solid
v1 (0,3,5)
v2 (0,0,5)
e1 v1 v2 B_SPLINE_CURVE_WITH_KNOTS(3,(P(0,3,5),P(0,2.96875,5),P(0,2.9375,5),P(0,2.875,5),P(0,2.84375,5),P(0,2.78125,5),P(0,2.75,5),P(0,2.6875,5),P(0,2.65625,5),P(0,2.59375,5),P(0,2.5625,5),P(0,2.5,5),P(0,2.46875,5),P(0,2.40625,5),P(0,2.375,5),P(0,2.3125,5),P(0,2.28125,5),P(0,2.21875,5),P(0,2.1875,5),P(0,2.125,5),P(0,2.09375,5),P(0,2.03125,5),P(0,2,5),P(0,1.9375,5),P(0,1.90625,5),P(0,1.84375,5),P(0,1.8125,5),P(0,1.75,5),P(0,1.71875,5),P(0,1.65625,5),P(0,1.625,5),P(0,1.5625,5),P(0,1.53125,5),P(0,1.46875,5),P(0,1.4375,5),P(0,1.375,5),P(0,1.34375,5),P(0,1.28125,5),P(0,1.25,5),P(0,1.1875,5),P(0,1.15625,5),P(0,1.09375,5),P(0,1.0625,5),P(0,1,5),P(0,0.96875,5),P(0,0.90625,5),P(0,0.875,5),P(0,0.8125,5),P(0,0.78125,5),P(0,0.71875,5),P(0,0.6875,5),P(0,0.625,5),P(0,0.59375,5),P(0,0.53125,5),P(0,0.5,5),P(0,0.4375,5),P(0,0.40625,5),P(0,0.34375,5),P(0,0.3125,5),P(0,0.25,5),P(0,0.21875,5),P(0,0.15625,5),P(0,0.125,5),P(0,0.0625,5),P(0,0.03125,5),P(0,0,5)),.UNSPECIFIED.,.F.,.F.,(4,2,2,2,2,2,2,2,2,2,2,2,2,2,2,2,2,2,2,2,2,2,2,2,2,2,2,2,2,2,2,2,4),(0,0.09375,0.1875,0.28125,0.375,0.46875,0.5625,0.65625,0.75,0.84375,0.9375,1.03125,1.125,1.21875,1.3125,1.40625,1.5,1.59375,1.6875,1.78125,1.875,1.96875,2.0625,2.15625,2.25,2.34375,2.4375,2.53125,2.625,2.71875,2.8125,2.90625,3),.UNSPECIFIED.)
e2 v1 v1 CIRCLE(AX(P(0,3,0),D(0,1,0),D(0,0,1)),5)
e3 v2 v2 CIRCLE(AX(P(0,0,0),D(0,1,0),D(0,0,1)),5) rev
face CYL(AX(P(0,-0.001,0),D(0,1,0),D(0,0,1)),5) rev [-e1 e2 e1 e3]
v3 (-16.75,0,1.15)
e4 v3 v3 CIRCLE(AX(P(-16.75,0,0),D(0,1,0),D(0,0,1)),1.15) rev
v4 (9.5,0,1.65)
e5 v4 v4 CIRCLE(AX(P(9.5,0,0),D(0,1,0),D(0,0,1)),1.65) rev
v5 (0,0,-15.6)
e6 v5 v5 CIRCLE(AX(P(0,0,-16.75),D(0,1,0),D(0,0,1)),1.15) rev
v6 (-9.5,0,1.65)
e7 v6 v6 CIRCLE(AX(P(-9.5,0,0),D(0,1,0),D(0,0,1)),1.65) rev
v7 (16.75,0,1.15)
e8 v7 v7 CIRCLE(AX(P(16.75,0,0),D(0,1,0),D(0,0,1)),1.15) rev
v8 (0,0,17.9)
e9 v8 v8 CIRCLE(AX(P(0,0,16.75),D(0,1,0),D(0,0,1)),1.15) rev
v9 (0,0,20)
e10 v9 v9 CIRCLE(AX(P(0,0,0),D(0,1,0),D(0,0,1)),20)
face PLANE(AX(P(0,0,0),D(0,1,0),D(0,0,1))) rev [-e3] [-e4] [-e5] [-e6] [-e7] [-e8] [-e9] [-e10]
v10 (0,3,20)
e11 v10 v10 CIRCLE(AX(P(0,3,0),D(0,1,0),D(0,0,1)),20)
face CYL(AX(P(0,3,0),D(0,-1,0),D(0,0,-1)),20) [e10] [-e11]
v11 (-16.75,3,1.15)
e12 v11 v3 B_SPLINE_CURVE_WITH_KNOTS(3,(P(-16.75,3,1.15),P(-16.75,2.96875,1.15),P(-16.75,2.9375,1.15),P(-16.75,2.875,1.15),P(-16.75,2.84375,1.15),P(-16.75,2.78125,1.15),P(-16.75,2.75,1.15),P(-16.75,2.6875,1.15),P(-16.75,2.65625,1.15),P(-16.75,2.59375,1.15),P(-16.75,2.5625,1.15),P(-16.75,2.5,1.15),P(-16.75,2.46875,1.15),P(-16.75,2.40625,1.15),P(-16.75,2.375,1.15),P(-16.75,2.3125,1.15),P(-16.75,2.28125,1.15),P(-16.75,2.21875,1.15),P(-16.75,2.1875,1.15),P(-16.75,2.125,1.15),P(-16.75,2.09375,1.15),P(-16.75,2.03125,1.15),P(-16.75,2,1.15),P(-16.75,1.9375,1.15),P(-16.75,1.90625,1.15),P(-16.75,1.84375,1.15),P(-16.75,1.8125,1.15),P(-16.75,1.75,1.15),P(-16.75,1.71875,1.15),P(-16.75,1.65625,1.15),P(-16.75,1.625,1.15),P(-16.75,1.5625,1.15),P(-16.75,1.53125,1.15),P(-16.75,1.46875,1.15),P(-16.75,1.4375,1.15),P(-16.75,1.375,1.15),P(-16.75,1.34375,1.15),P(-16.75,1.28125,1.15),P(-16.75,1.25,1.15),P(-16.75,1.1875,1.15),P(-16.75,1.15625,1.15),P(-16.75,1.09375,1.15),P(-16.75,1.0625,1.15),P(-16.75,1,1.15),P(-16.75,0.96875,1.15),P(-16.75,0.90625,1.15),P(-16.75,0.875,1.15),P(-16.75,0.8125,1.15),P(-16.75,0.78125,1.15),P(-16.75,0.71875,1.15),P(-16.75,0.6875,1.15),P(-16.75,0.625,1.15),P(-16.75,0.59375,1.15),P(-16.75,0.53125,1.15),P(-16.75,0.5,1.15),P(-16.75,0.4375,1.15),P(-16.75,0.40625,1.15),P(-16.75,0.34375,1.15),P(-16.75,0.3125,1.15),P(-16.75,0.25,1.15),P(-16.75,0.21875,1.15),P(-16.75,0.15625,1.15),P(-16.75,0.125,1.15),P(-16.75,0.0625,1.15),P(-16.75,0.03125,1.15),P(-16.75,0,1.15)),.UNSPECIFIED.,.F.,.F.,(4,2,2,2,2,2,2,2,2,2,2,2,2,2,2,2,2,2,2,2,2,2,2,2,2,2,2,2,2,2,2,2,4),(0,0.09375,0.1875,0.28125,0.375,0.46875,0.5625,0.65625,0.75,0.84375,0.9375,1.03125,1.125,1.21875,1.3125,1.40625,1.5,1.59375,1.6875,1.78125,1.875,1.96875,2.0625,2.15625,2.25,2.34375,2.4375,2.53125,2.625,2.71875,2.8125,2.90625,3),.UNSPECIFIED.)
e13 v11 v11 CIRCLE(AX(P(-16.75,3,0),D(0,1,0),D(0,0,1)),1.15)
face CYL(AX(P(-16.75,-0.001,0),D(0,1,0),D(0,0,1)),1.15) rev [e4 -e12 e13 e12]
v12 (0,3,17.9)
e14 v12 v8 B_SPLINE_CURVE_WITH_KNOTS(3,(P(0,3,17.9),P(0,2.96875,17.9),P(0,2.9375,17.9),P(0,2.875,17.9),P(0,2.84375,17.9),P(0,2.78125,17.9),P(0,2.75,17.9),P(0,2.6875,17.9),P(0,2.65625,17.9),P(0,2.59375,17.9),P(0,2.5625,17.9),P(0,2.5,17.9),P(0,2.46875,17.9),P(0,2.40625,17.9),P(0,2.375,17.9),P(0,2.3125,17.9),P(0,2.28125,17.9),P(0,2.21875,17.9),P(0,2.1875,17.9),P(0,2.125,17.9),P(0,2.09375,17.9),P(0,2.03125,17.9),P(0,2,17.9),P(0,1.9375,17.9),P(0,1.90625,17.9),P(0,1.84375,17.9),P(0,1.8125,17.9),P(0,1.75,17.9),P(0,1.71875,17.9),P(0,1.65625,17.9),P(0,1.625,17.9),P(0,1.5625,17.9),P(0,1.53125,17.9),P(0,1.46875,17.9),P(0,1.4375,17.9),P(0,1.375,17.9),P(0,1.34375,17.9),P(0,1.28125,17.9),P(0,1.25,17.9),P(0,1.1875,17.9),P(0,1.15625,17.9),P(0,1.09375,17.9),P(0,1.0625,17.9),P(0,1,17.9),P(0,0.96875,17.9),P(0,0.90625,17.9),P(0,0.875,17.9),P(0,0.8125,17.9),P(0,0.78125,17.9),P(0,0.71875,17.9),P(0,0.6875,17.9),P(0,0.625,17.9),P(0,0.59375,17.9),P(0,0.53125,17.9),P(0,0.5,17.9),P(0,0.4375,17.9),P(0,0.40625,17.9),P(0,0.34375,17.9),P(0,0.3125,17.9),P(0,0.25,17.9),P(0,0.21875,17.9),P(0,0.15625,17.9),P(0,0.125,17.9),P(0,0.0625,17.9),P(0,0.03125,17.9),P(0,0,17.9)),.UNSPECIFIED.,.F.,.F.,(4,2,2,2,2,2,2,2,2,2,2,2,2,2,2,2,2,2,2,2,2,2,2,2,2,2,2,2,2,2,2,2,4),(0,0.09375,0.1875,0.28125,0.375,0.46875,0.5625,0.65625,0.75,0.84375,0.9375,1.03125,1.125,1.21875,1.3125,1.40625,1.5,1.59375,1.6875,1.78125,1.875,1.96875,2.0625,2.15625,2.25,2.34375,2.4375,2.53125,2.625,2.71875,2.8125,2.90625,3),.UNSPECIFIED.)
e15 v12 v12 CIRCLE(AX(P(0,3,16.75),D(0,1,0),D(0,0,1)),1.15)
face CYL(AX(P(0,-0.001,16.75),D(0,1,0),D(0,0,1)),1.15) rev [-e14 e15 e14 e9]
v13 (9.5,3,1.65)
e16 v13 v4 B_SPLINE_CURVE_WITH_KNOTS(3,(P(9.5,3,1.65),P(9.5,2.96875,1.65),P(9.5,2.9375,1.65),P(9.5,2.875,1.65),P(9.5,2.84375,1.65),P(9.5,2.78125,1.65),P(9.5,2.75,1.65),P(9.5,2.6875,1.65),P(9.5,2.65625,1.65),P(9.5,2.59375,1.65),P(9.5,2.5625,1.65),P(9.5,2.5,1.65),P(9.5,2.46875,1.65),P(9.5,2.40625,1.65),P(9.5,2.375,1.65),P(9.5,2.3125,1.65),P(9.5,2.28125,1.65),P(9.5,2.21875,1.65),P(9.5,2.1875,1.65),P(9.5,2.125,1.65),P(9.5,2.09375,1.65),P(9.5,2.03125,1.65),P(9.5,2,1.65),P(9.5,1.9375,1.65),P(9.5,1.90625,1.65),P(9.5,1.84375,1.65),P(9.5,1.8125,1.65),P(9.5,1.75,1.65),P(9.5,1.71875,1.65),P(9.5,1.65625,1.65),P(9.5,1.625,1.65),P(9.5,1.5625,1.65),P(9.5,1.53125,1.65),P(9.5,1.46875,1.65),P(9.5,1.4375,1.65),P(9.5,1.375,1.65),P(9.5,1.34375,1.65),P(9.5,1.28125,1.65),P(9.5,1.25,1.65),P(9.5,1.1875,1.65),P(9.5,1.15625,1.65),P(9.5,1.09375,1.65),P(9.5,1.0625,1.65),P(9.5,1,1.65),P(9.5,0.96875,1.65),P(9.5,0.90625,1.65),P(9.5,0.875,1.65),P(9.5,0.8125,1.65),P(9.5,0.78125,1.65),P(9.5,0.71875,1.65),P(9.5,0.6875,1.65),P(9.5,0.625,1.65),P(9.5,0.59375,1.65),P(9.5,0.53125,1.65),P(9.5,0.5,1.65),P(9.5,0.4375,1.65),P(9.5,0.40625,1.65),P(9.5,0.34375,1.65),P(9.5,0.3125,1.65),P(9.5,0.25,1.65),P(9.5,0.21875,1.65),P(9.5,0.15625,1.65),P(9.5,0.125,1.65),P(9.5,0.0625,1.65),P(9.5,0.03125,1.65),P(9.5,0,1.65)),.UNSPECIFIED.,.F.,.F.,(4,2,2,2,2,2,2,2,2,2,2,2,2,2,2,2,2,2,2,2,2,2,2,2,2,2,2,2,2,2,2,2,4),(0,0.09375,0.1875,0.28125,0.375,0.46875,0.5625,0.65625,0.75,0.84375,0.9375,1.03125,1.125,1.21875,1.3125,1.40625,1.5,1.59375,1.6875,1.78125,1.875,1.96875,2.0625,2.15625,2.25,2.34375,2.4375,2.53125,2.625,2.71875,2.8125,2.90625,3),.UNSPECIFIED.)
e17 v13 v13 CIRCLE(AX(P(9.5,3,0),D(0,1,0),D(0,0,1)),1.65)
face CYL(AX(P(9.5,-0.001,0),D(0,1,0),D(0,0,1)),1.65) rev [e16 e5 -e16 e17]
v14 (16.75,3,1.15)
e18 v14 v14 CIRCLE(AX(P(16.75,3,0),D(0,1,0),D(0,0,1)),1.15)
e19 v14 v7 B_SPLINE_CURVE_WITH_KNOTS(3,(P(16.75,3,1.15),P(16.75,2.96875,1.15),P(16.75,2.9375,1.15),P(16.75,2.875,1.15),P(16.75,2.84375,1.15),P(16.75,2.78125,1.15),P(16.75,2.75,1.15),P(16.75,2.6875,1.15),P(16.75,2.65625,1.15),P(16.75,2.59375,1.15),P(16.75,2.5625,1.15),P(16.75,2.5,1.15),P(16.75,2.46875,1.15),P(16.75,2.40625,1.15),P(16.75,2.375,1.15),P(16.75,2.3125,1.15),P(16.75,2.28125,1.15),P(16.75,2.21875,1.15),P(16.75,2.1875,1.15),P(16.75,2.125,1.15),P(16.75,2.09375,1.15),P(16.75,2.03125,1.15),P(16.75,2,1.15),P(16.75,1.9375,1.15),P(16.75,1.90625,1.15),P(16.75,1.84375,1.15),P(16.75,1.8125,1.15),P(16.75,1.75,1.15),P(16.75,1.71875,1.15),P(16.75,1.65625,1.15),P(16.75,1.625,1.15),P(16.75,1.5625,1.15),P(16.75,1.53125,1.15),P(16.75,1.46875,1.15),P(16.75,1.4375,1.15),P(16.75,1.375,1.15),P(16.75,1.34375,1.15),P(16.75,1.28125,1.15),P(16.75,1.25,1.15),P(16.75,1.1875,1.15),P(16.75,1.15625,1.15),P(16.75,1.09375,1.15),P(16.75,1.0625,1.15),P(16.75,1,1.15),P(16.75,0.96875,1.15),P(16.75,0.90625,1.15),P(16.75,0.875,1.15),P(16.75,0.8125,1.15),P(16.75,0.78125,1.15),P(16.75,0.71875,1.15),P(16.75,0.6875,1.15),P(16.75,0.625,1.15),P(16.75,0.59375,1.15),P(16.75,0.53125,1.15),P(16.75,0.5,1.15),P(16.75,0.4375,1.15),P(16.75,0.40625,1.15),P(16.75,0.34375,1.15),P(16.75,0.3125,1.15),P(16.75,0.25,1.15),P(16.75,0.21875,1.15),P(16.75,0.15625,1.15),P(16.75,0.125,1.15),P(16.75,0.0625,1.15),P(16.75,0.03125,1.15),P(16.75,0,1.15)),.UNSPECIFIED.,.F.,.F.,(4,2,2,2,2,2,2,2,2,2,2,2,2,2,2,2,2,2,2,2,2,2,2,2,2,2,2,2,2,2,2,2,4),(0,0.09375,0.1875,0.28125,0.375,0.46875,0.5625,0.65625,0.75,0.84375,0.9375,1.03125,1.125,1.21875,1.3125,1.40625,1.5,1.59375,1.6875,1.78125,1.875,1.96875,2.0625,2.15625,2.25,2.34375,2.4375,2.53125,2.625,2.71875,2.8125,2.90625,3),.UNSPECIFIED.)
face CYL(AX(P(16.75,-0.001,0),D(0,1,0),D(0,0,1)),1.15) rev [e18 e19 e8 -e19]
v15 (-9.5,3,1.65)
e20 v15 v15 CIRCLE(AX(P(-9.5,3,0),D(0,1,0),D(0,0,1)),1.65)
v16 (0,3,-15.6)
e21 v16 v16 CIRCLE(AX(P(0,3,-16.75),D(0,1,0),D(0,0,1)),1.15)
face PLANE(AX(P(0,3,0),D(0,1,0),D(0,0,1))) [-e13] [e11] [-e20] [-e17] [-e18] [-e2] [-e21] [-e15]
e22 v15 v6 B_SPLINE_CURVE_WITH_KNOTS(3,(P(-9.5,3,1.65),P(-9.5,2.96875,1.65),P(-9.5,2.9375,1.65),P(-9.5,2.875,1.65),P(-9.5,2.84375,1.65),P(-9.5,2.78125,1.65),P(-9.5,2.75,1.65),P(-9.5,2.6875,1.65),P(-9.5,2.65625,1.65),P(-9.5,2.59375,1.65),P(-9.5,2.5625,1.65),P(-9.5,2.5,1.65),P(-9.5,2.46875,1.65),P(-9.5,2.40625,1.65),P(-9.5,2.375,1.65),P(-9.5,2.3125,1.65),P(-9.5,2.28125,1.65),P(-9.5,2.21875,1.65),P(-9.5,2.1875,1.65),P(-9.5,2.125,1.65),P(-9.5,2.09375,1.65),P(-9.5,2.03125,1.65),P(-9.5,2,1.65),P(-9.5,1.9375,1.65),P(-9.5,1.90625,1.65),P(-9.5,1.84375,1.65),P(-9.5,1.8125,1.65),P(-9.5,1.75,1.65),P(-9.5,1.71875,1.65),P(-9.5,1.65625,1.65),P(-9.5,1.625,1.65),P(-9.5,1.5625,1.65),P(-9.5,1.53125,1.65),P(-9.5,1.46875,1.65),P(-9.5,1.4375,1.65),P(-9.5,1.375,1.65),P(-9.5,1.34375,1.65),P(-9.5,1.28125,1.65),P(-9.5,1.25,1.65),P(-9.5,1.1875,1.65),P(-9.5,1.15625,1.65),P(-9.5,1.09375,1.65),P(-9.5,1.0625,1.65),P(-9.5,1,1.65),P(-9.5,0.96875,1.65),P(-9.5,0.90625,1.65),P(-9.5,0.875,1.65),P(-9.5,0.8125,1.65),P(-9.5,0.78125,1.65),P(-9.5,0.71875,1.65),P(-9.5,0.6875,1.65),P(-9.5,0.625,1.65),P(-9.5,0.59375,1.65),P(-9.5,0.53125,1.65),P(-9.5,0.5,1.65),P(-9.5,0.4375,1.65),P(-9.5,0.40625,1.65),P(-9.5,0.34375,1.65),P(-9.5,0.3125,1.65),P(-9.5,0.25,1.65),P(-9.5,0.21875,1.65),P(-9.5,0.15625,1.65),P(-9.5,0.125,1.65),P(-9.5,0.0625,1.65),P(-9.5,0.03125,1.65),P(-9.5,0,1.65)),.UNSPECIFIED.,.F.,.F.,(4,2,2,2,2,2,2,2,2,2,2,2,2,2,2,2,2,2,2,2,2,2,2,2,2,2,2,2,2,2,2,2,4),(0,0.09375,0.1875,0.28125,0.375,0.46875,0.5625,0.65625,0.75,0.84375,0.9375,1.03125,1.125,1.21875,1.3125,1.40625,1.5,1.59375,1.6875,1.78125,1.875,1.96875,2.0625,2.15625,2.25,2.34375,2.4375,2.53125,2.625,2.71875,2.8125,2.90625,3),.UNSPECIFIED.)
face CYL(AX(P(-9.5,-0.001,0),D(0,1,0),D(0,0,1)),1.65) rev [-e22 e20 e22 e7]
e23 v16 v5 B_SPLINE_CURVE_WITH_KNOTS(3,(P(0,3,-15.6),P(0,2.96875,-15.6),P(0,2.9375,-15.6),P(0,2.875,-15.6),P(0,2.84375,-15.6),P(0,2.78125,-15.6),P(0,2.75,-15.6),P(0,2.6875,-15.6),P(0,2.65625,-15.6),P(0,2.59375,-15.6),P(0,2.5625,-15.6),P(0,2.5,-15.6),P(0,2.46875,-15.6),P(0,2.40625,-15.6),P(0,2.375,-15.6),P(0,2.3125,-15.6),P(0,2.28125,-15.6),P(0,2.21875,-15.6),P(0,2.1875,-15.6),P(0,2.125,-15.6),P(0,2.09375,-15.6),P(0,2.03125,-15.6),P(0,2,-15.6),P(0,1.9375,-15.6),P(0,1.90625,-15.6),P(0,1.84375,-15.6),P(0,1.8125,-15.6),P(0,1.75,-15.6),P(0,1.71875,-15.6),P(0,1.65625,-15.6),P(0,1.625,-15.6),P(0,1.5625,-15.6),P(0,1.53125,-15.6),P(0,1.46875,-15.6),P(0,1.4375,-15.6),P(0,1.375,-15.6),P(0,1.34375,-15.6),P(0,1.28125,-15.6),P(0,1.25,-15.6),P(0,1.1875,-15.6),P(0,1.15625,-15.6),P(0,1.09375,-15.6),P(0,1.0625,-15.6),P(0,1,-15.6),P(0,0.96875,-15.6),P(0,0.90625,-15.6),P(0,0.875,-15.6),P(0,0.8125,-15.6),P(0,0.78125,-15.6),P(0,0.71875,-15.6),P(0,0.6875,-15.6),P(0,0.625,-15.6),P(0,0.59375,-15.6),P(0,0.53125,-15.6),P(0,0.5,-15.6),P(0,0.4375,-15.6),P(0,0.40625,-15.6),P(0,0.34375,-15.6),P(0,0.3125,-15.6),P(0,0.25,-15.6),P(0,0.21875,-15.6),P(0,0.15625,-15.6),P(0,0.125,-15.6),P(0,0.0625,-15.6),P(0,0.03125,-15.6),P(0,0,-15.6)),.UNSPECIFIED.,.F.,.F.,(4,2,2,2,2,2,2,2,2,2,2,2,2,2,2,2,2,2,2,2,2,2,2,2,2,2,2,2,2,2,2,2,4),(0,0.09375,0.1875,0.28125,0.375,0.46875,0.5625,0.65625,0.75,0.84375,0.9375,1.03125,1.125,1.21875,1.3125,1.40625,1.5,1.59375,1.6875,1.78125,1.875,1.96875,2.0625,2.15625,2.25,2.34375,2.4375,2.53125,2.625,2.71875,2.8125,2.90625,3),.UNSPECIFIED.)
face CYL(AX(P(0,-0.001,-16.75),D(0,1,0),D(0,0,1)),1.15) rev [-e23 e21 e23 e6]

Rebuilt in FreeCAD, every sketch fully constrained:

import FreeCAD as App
import Part
import Sketcher

doc = App.newDocument("Part")
params = doc.addObject("Spreadsheet::Sheet", "Params")
for row, (alias, value) in enumerate([
    ("sketch1_diameter", "40 mm"),
    ("pad1_length", "3 mm"),
    ("sketch2_diameter", "2.3 mm"),
    ("sketch3_diameter", "2.3 mm"),
    ("sketch4_diameter", "2.3 mm"),
    ("sketch5_diameter", "2.3 mm"),
    ("sketch6_diameter", "3.3 mm"),
    ("sketch7_diameter", "3.3 mm"),
    ("sketch8_diameter", "10 mm"),
], start=1):
    params.set(f"A{row}", alias)
    params.set(f"B{row}", "=" + value)
    params.setAlias(f"B{row}", alias)

body = doc.addObject("PartDesign::Body", "Body")

sketch1 = body.newObject("Sketcher::SketchObject", "Sketch")
sketch1.AttachmentSupport = (doc.getObject("XZ_Plane"), [""])
sketch1.MapMode = "FlatFace"
sketch1.addGeometry(Part.Circle(App.Vector(0, 0, 0), App.Vector(0, 0, 1), 20), False)
sketch1.addConstraint([
    Sketcher.Constraint("Coincident", 0, 3, -1, 1),
    Sketcher.Constraint("Diameter", 0, 40.0),
])
sketch1.setExpression("Constraints[1]", "Params.sketch1_diameter")
pad1 = body.newObject("PartDesign::Pad", "Pad")
pad1.Profile = sketch1
pad1.setExpression("Length", "Params.pad1_length")
pad1.Reversed = True

sketch2 = body.newObject("Sketcher::SketchObject", "Sketch001")
sketch2.AttachmentSupport = (doc.getObject("XZ_Plane"), [""])
sketch2.MapMode = "FlatFace"
sketch2.AttachmentOffset = App.Placement(App.Vector(0, 0, -3), App.Rotation())
sketch2.addGeometry(Part.Circle(App.Vector(0, -16.8, 0), App.Vector(0, 0, 1), 1.1), False)
sketch2.addConstraint([
    Sketcher.Constraint("PointOnObject", 0, 3, -2),
    Sketcher.Constraint("Diameter", 0, 2.3),
    Sketcher.Constraint("DistanceY", 0, 3, -1, 1, 16.75),
])
sketch2.setExpression("Constraints[1]", "Params.sketch2_diameter")
pocket1 = body.newObject("PartDesign::Pocket", "Pocket")
pocket1.Profile = sketch2
pocket1.Type = "UpToFirst"
pocket1.Reversed = True

sketch3 = body.newObject("Sketcher::SketchObject", "Sketch002")
sketch3.AttachmentSupport = (doc.getObject("XZ_Plane"), [""])
sketch3.MapMode = "FlatFace"
sketch3.AttachmentOffset = App.Placement(App.Vector(0, 0, -3), App.Rotation())
sketch3.addGeometry(Part.Circle(App.Vector(16.8, 0, 0), App.Vector(0, 0, 1), 1.1), False)
sketch3.addConstraint([
    Sketcher.Constraint("PointOnObject", 0, 3, -1),
    Sketcher.Constraint("Diameter", 0, 2.3),
    Sketcher.Constraint("DistanceX", -1, 1, 0, 3, 16.75),
])
sketch3.setExpression("Constraints[1]", "Params.sketch3_diameter")
pocket2 = body.newObject("PartDesign::Pocket", "Pocket001")
pocket2.Profile = sketch3
pocket2.Type = "UpToFirst"
pocket2.Reversed = True

sketch4 = body.newObject("Sketcher::SketchObject", "Sketch003")
sketch4.AttachmentSupport = (doc.getObject("XZ_Plane"), [""])
sketch4.MapMode = "FlatFace"
sketch4.AttachmentOffset = App.Placement(App.Vector(0, 0, -3), App.Rotation())
sketch4.addGeometry(Part.Circle(App.Vector(0, 16.8, 0), App.Vector(0, 0, 1), 1.1), False)
sketch4.addConstraint([
    Sketcher.Constraint("PointOnObject", 0, 3, -2),
    Sketcher.Constraint("Diameter", 0, 2.3),
    Sketcher.Constraint("DistanceY", -1, 1, 0, 3, 16.75),
])
sketch4.setExpression("Constraints[1]", "Params.sketch4_diameter")
pocket3 = body.newObject("PartDesign::Pocket", "Pocket002")
pocket3.Profile = sketch4
pocket3.Type = "UpToFirst"
pocket3.Reversed = True

sketch5 = body.newObject("Sketcher::SketchObject", "Sketch004")
sketch5.AttachmentSupport = (doc.getObject("XZ_Plane"), [""])
sketch5.MapMode = "FlatFace"
sketch5.AttachmentOffset = App.Placement(App.Vector(0, 0, -3), App.Rotation())
sketch5.addGeometry(Part.Circle(App.Vector(-16.8, 0, 0), App.Vector(0, 0, 1), 1.1), False)
sketch5.addConstraint([
    Sketcher.Constraint("PointOnObject", 0, 3, -1),
    Sketcher.Constraint("Diameter", 0, 2.3),
    Sketcher.Constraint("DistanceX", 0, 3, -1, 1, 16.75),
])
sketch5.setExpression("Constraints[1]", "Params.sketch5_diameter")
pocket4 = body.newObject("PartDesign::Pocket", "Pocket003")
pocket4.Profile = sketch5
pocket4.Type = "UpToFirst"
pocket4.Reversed = True

sketch6 = body.newObject("Sketcher::SketchObject", "Sketch005")
sketch6.AttachmentSupport = (doc.getObject("XZ_Plane"), [""])
sketch6.MapMode = "FlatFace"
sketch6.AttachmentOffset = App.Placement(App.Vector(0, 0, -3), App.Rotation())
sketch6.addGeometry(Part.Circle(App.Vector(-9.5, 0, 0), App.Vector(0, 0, 1), 1.6), False)
sketch6.addConstraint([
    Sketcher.Constraint("PointOnObject", 0, 3, -1),
    Sketcher.Constraint("Diameter", 0, 3.3),
    Sketcher.Constraint("DistanceX", 0, 3, -1, 1, 9.5),
])
sketch6.setExpression("Constraints[1]", "Params.sketch6_diameter")
pocket5 = body.newObject("PartDesign::Pocket", "Pocket004")
pocket5.Profile = sketch6
pocket5.Type = "UpToFirst"
pocket5.Reversed = True

sketch7 = body.newObject("Sketcher::SketchObject", "Sketch006")
sketch7.AttachmentSupport = (doc.getObject("XZ_Plane"), [""])
sketch7.MapMode = "FlatFace"
sketch7.AttachmentOffset = App.Placement(App.Vector(0, 0, -3), App.Rotation())
sketch7.addGeometry(Part.Circle(App.Vector(9.5, 0, 0), App.Vector(0, 0, 1), 1.6), False)
sketch7.addConstraint([
    Sketcher.Constraint("PointOnObject", 0, 3, -1),
    Sketcher.Constraint("Diameter", 0, 3.3),
    Sketcher.Constraint("DistanceX", -1, 1, 0, 3, 9.5),
])
sketch7.setExpression("Constraints[1]", "Params.sketch7_diameter")
pocket6 = body.newObject("PartDesign::Pocket", "Pocket005")
pocket6.Profile = sketch7
pocket6.Type = "UpToFirst"
pocket6.Reversed = True

sketch8 = body.newObject("Sketcher::SketchObject", "Sketch007")
sketch8.AttachmentSupport = (doc.getObject("XZ_Plane"), [""])
sketch8.MapMode = "FlatFace"
sketch8.AttachmentOffset = App.Placement(App.Vector(0, 0, -3), App.Rotation())
sketch8.addGeometry(Part.Circle(App.Vector(0, 0, 0), App.Vector(0, 0, 1), 5), False)
sketch8.addConstraint([
    Sketcher.Constraint("Coincident", 0, 3, -1, 1),
    Sketcher.Constraint("Diameter", 0, 10.0),
])
sketch8.setExpression("Constraints[1]", "Params.sketch8_diameter")
pocket7 = body.newObject("PartDesign::Pocket", "Pocket006")
pocket7.Profile = sketch8
pocket7.Type = "UpToFirst"
pocket7.Reversed = True

doc.recompute()
